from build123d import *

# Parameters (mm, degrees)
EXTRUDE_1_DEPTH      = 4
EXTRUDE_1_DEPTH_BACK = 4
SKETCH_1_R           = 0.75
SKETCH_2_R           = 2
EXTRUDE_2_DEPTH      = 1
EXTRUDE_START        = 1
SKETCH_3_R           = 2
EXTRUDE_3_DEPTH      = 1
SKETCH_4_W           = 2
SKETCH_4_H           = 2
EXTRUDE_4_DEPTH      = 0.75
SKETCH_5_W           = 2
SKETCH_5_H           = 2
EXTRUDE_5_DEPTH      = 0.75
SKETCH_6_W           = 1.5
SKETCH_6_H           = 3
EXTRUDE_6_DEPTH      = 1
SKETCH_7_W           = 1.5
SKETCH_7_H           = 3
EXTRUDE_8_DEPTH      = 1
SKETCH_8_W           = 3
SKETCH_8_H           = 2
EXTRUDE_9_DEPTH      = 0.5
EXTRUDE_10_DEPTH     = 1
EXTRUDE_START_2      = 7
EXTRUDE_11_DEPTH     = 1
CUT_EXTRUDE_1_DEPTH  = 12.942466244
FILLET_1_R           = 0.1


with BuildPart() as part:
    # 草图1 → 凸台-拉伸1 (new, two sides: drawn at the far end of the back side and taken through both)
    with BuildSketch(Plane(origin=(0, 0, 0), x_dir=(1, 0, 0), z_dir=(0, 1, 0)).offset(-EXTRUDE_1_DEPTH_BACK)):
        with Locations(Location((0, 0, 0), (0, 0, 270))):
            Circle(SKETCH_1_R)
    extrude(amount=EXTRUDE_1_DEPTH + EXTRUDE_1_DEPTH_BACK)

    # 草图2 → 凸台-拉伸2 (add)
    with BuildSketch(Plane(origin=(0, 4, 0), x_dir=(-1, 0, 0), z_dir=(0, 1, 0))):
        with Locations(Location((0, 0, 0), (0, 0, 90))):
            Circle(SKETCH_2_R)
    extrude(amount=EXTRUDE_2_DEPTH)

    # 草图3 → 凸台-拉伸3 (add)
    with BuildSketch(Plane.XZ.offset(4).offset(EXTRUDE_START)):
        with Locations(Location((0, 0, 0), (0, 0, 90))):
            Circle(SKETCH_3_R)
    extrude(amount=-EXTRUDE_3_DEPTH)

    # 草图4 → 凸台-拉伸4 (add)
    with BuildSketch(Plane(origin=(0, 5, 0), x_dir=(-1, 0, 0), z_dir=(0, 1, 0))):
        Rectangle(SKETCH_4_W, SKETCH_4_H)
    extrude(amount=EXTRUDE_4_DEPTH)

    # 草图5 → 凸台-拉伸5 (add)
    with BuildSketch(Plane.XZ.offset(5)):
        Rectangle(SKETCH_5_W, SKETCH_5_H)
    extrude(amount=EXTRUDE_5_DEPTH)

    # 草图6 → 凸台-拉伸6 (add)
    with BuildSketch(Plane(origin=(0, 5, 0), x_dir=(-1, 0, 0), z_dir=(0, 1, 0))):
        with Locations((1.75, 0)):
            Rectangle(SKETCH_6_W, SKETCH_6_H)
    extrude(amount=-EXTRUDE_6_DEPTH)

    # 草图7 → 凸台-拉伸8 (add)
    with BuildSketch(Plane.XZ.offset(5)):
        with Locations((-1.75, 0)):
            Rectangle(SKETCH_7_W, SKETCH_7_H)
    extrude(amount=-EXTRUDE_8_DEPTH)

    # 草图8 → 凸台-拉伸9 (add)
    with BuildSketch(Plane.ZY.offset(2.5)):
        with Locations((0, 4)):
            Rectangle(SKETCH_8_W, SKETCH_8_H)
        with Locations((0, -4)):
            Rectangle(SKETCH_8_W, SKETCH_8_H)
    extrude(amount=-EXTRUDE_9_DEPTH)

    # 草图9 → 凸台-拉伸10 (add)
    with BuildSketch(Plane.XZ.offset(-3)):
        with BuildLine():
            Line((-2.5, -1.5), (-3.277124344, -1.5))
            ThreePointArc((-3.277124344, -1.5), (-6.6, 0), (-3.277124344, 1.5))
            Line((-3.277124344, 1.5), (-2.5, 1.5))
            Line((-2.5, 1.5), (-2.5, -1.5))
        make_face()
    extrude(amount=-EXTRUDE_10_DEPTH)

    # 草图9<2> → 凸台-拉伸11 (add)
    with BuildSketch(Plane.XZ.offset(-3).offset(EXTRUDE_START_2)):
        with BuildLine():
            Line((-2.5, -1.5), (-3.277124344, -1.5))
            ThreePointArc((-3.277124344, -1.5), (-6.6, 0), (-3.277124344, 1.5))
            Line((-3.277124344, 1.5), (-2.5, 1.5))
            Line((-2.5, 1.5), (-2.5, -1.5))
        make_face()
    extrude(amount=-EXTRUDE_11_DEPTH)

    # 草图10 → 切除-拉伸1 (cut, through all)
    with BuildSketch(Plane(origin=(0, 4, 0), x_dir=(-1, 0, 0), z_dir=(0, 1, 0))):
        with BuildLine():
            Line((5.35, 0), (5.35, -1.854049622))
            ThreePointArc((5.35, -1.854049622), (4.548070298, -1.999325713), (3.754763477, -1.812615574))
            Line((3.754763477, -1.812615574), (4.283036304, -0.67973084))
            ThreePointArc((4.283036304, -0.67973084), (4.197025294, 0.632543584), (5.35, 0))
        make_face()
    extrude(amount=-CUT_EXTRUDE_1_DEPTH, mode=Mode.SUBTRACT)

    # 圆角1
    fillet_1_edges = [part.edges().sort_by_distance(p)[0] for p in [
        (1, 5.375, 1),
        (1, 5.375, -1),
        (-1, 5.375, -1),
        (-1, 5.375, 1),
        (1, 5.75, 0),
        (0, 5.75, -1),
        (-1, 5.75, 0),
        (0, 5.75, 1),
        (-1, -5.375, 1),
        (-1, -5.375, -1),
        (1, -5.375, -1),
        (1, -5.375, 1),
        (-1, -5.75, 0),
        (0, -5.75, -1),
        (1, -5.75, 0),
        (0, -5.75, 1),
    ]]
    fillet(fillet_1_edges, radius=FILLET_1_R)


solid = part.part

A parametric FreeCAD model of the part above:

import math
import FreeCAD as App
import Part
import Sketcher

V = App.Vector
Q = App.Units.Quantity


def edges_at(feature, points):
    """Names of the edges that pass closest to the given points."""
    edges = feature.Shape.Edges
    near = lambda p: min(range(len(edges)), key=lambda i: edges[i].distToShape(Part.Vertex(*p))[0])
    return sorted({f"Edge{near(p) + 1}" for p in points})

doc = App.newDocument("Part")
body = doc.addObject("PartDesign::Body", "Body")

# Sketch on XZ plane
sketch1 = body.newObject("Sketcher::SketchObject", "Sketch")
sketch1.AttachmentSupport = (doc.getObject("XZ_Plane"), [""])
sketch1.MapMode = "FlatFace"
sketch1.addGeometry(Part.Circle(V(0, 0, 0), V(0, 0, 1), 0.8), False)
sketch1.addConstraint([
    Sketcher.Constraint("Coincident", 0, 3, -1, 1),
    Sketcher.Constraint("Diameter", 0, 1.5),
])
pad1 = body.newObject("PartDesign::Pad", "Pad")
pad1.Profile = sketch1
pad1.Type = "TwoLengths"
pad1.Length = 4
pad1.Length2 = 4
pad1.Reversed = True

# Sketch on XZ plane
sketch2 = body.newObject("Sketcher::SketchObject", "Sketch001")
sketch2.AttachmentSupport = (doc.getObject("XZ_Plane"), [""])
sketch2.MapMode = "FlatFace"
sketch2.AttachmentOffset = App.Placement(V(0, 0, -4), App.Rotation())
sketch2.addGeometry(Part.Circle(V(0, 0, 0), V(0, 0, 1), 2), False)
sketch2.addConstraint([
    Sketcher.Constraint("Coincident", 0, 3, -1, 1),
    Sketcher.Constraint("Diameter", 0, 4.0),
])
pad2 = body.newObject("PartDesign::Pad", "Pad001")
pad2.Profile = sketch2
pad2.Length = 1
pad2.Reversed = True

# Sketch on XZ plane
sketch3 = body.newObject("Sketcher::SketchObject", "Sketch002")
sketch3.AttachmentSupport = (doc.getObject("XZ_Plane"), [""])
sketch3.MapMode = "FlatFace"
sketch3.AttachmentOffset = App.Placement(V(0, 0, 5), App.Rotation())
sketch3.addGeometry(Part.Circle(V(0, 0, 0), V(0, 0, 1), 2), False)
sketch3.addConstraint([
    Sketcher.Constraint("Coincident", 0, 3, -1, 1),
    Sketcher.Constraint("Diameter", 0, 4.0),
])
pad3 = body.newObject("PartDesign::Pad", "Pad002")
pad3.Profile = sketch3
pad3.Length = 1
pad3.Reversed = True

# Sketch on XZ plane
sketch4 = body.newObject("Sketcher::SketchObject", "Sketch003")
sketch4.AttachmentSupport = (doc.getObject("XZ_Plane"), [""])
sketch4.MapMode = "FlatFace"
sketch4.AttachmentOffset = App.Placement(V(0, 0, -5), App.Rotation())
sketch4.addGeometry([
    Part.LineSegment(V(1, 1, 0), V(1, -1, 0)),
    Part.LineSegment(V(1, -1, 0), V(-1, -1, 0)),
    Part.LineSegment(V(-1, -1, 0), V(-1, 1, 0)),
    Part.LineSegment(V(-1, 1, 0), V(1, 1, 0)),
], False)
sketch4.addConstraint([
    Sketcher.Constraint("Coincident", 0, 2, 1, 1),
    Sketcher.Constraint("Coincident", 1, 2, 2, 1),
    Sketcher.Constraint("Coincident", 2, 2, 3, 1),
    Sketcher.Constraint("Coincident", 3, 2, 0, 1),
    Sketcher.Constraint("Vertical", 0),
    Sketcher.Constraint("Horizontal", 1),
    Sketcher.Constraint("Vertical", 2),
    Sketcher.Constraint("Horizontal", 3),
    Sketcher.Constraint("Symmetric", 0, 2, 2, 2, -1, 1),
    Sketcher.Constraint("Equal", 3, 0),
    Sketcher.Constraint("DistanceX", 1, 2, 1, 1, 2.0),
])
pad4 = body.newObject("PartDesign::Pad", "Pad003")
pad4.Profile = sketch4
pad4.Length = 0.75
pad4.Reversed = True

# Sketch on XZ plane
sketch5 = body.newObject("Sketcher::SketchObject", "Sketch004")
sketch5.AttachmentSupport = (doc.getObject("XZ_Plane"), [""])
sketch5.MapMode = "FlatFace"
sketch5.AttachmentOffset = App.Placement(V(0, 0, 5), App.Rotation())
sketch5.addGeometry([
    Part.LineSegment(V(-1, 1, 0), V(-1, -1, 0)),
    Part.LineSegment(V(-1, -1, 0), V(1, -1, 0)),
    Part.LineSegment(V(1, -1, 0), V(1, 1, 0)),
    Part.LineSegment(V(1, 1, 0), V(-1, 1, 0)),
], False)
sketch5.addConstraint([
    Sketcher.Constraint("Coincident", 0, 2, 1, 1),
    Sketcher.Constraint("Coincident", 1, 2, 2, 1),
    Sketcher.Constraint("Coincident", 2, 2, 3, 1),
    Sketcher.Constraint("Coincident", 3, 2, 0, 1),
    Sketcher.Constraint("Vertical", 0),
    Sketcher.Constraint("Horizontal", 1),
    Sketcher.Constraint("Vertical", 2),
    Sketcher.Constraint("Horizontal", 3),
    Sketcher.Constraint("Symmetric", 0, 2, 2, 2, -1, 1),
    Sketcher.Constraint("Equal", 3, 0),
    Sketcher.Constraint("DistanceX", 1, 1, 1, 2, 2.0),
])
pad5 = body.newObject("PartDesign::Pad", "Pad004")
pad5.Profile = sketch5
pad5.Length = 0.75

# Sketch on XZ plane
sketch6 = body.newObject("Sketcher::SketchObject", "Sketch005")
sketch6.AttachmentSupport = (doc.getObject("XZ_Plane"), [""])
sketch6.MapMode = "FlatFace"
sketch6.AttachmentOffset = App.Placement(V(0, 0, -5), App.Rotation())
sketch6.addGeometry([
    Part.LineSegment(V(-1, 1.5, 0), V(-1, -1.5, 0)),
    Part.LineSegment(V(-1, -1.5, 0), V(-2.5, -1.5, 0)),
    Part.LineSegment(V(-2.5, -1.5, 0), V(-2.5, 1.5, 0)),
    Part.LineSegment(V(-2.5, 1.5, 0), V(-1, 1.5, 0)),
], False)
sketch6.addConstraint([
    Sketcher.Constraint("Coincident", 0, 2, 1, 1),
    Sketcher.Constraint("Coincident", 1, 2, 2, 1),
    Sketcher.Constraint("Coincident", 2, 2, 3, 1),
    Sketcher.Constraint("Coincident", 3, 2, 0, 1),
    Sketcher.Constraint("Vertical", 0),
    Sketcher.Constraint("Horizontal", 1),
    Sketcher.Constraint("Vertical", 2),
    Sketcher.Constraint("Horizontal", 3),
    Sketcher.Constraint("DistanceY", 0, 2, 0, 1, 3.0),
    Sketcher.Constraint("DistanceX", 1, 2, 1, 1, 1.5),
    Sketcher.Constraint("DistanceX", 0, 2, -1, 1, 1.0),
    Sketcher.Constraint("DistanceY", 0, 2, -1, 1, 1.5),
])
pad6 = body.newObject("PartDesign::Pad", "Pad005")
pad6.Profile = sketch6
pad6.Length = 1

# Sketch on XZ plane
sketch7 = body.newObject("Sketcher::SketchObject", "Sketch006")
sketch7.AttachmentSupport = (doc.getObject("XZ_Plane"), [""])
sketch7.MapMode = "FlatFace"
sketch7.AttachmentOffset = App.Placement(V(0, 0, 5), App.Rotation())
sketch7.addGeometry([
    Part.LineSegment(V(-2.5, 1.5, 0), V(-2.5, -1.5, 0)),
    Part.LineSegment(V(-2.5, -1.5, 0), V(-1, -1.5, 0)),
    Part.LineSegment(V(-1, -1.5, 0), V(-1, 1.5, 0)),
    Part.LineSegment(V(-1, 1.5, 0), V(-2.5, 1.5, 0)),
], False)
sketch7.addConstraint([
    Sketcher.Constraint("Coincident", 0, 2, 1, 1),
    Sketcher.Constraint("Coincident", 1, 2, 2, 1),
    Sketcher.Constraint("Coincident", 2, 2, 3, 1),
    Sketcher.Constraint("Coincident", 3, 2, 0, 1),
    Sketcher.Constraint("Vertical", 0),
    Sketcher.Constraint("Horizontal", 1),
    Sketcher.Constraint("Vertical", 2),
    Sketcher.Constraint("Horizontal", 3),
    Sketcher.Constraint("DistanceY", 0, 2, 0, 1, 3.0),
    Sketcher.Constraint("DistanceX", 1, 1, 1, 2, 1.5),
    Sketcher.Constraint("DistanceX", 1, 2, -1, 1, 1.0),
    Sketcher.Constraint("DistanceY", 0, 2, -1, 1, 1.5),
])
pad7 = body.newObject("PartDesign::Pad", "Pad006")
pad7.Profile = sketch7
pad7.Length = 1
pad7.Reversed = True

# Sketch on YZ plane
sketch8 = body.newObject("Sketcher::SketchObject", "Sketch007")
sketch8.AttachmentSupport = (doc.getObject("YZ_Plane"), [""])
sketch8.MapMode = "FlatFace"
sketch8.AttachmentOffset = App.Placement(V(0, 0, -2.5), App.Rotation())
sketch8.addGeometry([
    Part.LineSegment(V(5, -1.5, 0), V(3, -1.5, 0)),  # 0
    Part.LineSegment(V(3, -1.5, 0), V(3, 1.5, 0)),  # 1
    Part.LineSegment(V(3, 1.5, 0), V(5, 1.5, 0)),  # 2
    Part.LineSegment(V(5, 1.5, 0), V(5, -1.5, 0)),  # 3
    Part.LineSegment(V(-3, -1.5, 0), V(-5, -1.5, 0)),  # 4
    Part.LineSegment(V(-5, -1.5, 0), V(-5, 1.5, 0)),  # 5
    Part.LineSegment(V(-5, 1.5, 0), V(-3, 1.5, 0)),  # 6
    Part.LineSegment(V(-3, 1.5, 0), V(-3, -1.5, 0)),  # 7
], False)
sketch8.addConstraint([
    Sketcher.Constraint("Coincident", 0, 2, 1, 1),
    Sketcher.Constraint("Coincident", 1, 2, 2, 1),
    Sketcher.Constraint("Coincident", 2, 2, 3, 1),
    Sketcher.Constraint("Coincident", 3, 2, 0, 1),
    Sketcher.Constraint("Coincident", 4, 2, 5, 1),
    Sketcher.Constraint("Coincident", 5, 2, 6, 1),
    Sketcher.Constraint("Coincident", 6, 2, 7, 1),
    Sketcher.Constraint("Coincident", 7, 2, 4, 1),
    Sketcher.Constraint("Horizontal", 0),
    Sketcher.Constraint("Vertical", 1),
    Sketcher.Constraint("Horizontal", 2),
    Sketcher.Constraint("Vertical", 3),
    Sketcher.Constraint("Horizontal", 4),
    Sketcher.Constraint("Vertical", 5),
    Sketcher.Constraint("Horizontal", 6),
    Sketcher.Constraint("Vertical", 7),
    Sketcher.Constraint("Symmetric", 2, 2, 4, 2, -1, 1),
    Sketcher.Constraint("Symmetric", 0, 2, 6, 2, -1, 1),
    Sketcher.Constraint("Horizontal", 3, 2, 4, 2),
    Sketcher.Constraint("DistanceX", 0, 2, 0, 1, 2.0),
    Sketcher.Constraint("DistanceY", 1, 1, 1, 2, 3.0),
    Sketcher.Constraint("DistanceX", -1, 1, 0, 2, 3.0),
])
pad8 = body.newObject("PartDesign::Pad", "Pad007")
pad8.Profile = sketch8
pad8.Length = 0.5

# Sketch on XZ plane
sketch9 = body.newObject("Sketcher::SketchObject", "Sketch008")
sketch9.AttachmentSupport = (doc.getObject("XZ_Plane"), [""])
sketch9.MapMode = "FlatFace"
sketch9.AttachmentOffset = App.Placement(V(0, 0, -3), App.Rotation())
sketch9.addGeometry([
    Part.LineSegment(V(-3.3, -1.5, 0), V(-2.5, -1.5, 0)),
    Part.LineSegment(V(-2.5, -1.5, 0), V(-2.5, 1.5, 0)),
    Part.LineSegment(V(-2.5, 1.5, 0), V(-3.3, 1.5, 0)),
    Part.ArcOfCircle(Part.Circle(V(-4.6, 0, 0), V(0, 0, 1), 2), math.radians(49), math.radians(311)),
], False)
sketch9.addConstraint([
    Sketcher.Constraint("Coincident", 0, 2, 1, 1),
    Sketcher.Constraint("Coincident", 1, 2, 2, 1),
    Sketcher.Constraint("Coincident", 2, 2, 3, 1),
    Sketcher.Constraint("Coincident", 3, 2, 0, 1),
    Sketcher.Constraint("Horizontal", 0),
    Sketcher.Constraint("Vertical", 1),
    Sketcher.Constraint("Horizontal", 2),
    Sketcher.Constraint("Symmetric", 2, 2, 3, 2, -1),
    Sketcher.Constraint("Radius", 3, 2.0),
    Sketcher.Constraint("DistanceY", 1, 1, 1, 2, 3.0),
    Sketcher.Constraint("DistanceX", 3, 3, -1, 1, 4.6),
    Sketcher.Constraint("DistanceX", 0, 2, -1, 1, 2.5),
])
pad9 = body.newObject("PartDesign::Pad", "Pad008")
pad9.Profile = sketch9
pad9.Length = 1
pad9.Reversed = True

# Sketch on XZ plane
sketch10 = body.newObject("Sketcher::SketchObject", "Sketch009")
sketch10.AttachmentSupport = (doc.getObject("XZ_Plane"), [""])
sketch10.MapMode = "FlatFace"
sketch10.AttachmentOffset = App.Placement(V(0, 0, 4), App.Rotation())
sketch10.addGeometry([
    Part.LineSegment(V(-3.3, -1.5, 0), V(-2.5, -1.5, 0)),
    Part.LineSegment(V(-2.5, -1.5, 0), V(-2.5, 1.5, 0)),
    Part.LineSegment(V(-2.5, 1.5, 0), V(-3.3, 1.5, 0)),
    Part.ArcOfCircle(Part.Circle(V(-4.6, 0, 0), V(0, 0, 1), 2), math.radians(49), math.radians(311)),
], False)
sketch10.addConstraint([
    Sketcher.Constraint("Coincident", 0, 2, 1, 1),
    Sketcher.Constraint("Coincident", 1, 2, 2, 1),
    Sketcher.Constraint("Coincident", 2, 2, 3, 1),
    Sketcher.Constraint("Coincident", 3, 2, 0, 1),
    Sketcher.Constraint("Horizontal", 0),
    Sketcher.Constraint("Vertical", 1),
    Sketcher.Constraint("Horizontal", 2),
    Sketcher.Constraint("Symmetric", 2, 2, 3, 2, -1),
    Sketcher.Constraint("Radius", 3, 2.0),
    Sketcher.Constraint("DistanceY", 1, 1, 1, 2, 3.0),
    Sketcher.Constraint("DistanceX", 3, 3, -1, 1, 4.6),
    Sketcher.Constraint("DistanceX", 0, 2, -1, 1, 2.5),
])
pad10 = body.newObject("PartDesign::Pad", "Pad009")
pad10.Profile = sketch10
pad10.Length = 1
pad10.Reversed = True

# Sketch on XZ plane
sketch11 = body.newObject("Sketcher::SketchObject", "Sketch010")
sketch11.AttachmentSupport = (doc.getObject("XZ_Plane"), [""])
sketch11.MapMode = "FlatFace"
sketch11.AttachmentOffset = App.Placement(V(0, 0, -4), App.Rotation())
sketch11.addGeometry([
    Part.LineSegment(V(-5.3, -1.9, 0), V(-5.3, 0, 0)),
    Part.ArcOfCircle(Part.Circle(V(-4.6, 0, 0), V(0, 0, 1), 0.8), math.radians(-65), math.radians(180)),
    Part.LineSegment(V(-4.3, -0.7, 0), V(-3.8, -1.8, 0)),
    Part.ArcOfCircle(Part.Circle(V(-4.6, 0, 0), V(0, 0, 1), 2), math.radians(-112), math.radians(-65)),
], False)
sketch11.addConstraint([
    Sketcher.Constraint("Tangent", 0, 2, 1, 2),
    Sketcher.Constraint("Coincident", 1, 1, 2, 1),
    Sketcher.Constraint("Coincident", 2, 2, 3, 2),
    Sketcher.Constraint("Coincident", 3, 1, 0, 1),
    Sketcher.Constraint("Vertical", 0),
    Sketcher.Constraint("Coincident", 3, 3, 1, 3),
    Sketcher.Constraint("PointOnObject", 1, 3, -1),
    Sketcher.Constraint("Radius", 3, 2.0),
    Sketcher.Constraint("Angle", 2, Q("-65 deg")),
    Sketcher.Constraint("Radius", 1, 0.75),
    Sketcher.Constraint("DistanceX", 1, 3, -1, 1, 4.6),
    Sketcher.Constraint("DistanceY", 1, 1, -1, 1, 0.679731),
])
pocket1 = body.newObject("PartDesign::Pocket", "Pocket")
pocket1.Profile = sketch11
pocket1.Type = "ThroughAll"
pocket1.Reversed = True
doc.recompute()

fillet = body.newObject("PartDesign::Fillet", "Fillet")
fillet.Base = (pocket1, edges_at(pocket1, [
    (1, 5.375, 1),
    (1, 5.375, -1),
    (-1, 5.375, -1),
    (-1, 5.375, 1),
    (1, 5.75, 0),
    (0, 5.75, -1),
    (-1, 5.75, 0),
    (0, 5.75, 1),
    (-1, -5.375, 1),
    (-1, -5.375, -1),
    (1, -5.375, -1),
    (1, -5.375, 1),
    (-1, -5.75, 0),
    (0, -5.75, -1),
    (1, -5.75, 0),
    (0, -5.75, 1),
]))
fillet.Radius = 0.1

doc.recompute()
